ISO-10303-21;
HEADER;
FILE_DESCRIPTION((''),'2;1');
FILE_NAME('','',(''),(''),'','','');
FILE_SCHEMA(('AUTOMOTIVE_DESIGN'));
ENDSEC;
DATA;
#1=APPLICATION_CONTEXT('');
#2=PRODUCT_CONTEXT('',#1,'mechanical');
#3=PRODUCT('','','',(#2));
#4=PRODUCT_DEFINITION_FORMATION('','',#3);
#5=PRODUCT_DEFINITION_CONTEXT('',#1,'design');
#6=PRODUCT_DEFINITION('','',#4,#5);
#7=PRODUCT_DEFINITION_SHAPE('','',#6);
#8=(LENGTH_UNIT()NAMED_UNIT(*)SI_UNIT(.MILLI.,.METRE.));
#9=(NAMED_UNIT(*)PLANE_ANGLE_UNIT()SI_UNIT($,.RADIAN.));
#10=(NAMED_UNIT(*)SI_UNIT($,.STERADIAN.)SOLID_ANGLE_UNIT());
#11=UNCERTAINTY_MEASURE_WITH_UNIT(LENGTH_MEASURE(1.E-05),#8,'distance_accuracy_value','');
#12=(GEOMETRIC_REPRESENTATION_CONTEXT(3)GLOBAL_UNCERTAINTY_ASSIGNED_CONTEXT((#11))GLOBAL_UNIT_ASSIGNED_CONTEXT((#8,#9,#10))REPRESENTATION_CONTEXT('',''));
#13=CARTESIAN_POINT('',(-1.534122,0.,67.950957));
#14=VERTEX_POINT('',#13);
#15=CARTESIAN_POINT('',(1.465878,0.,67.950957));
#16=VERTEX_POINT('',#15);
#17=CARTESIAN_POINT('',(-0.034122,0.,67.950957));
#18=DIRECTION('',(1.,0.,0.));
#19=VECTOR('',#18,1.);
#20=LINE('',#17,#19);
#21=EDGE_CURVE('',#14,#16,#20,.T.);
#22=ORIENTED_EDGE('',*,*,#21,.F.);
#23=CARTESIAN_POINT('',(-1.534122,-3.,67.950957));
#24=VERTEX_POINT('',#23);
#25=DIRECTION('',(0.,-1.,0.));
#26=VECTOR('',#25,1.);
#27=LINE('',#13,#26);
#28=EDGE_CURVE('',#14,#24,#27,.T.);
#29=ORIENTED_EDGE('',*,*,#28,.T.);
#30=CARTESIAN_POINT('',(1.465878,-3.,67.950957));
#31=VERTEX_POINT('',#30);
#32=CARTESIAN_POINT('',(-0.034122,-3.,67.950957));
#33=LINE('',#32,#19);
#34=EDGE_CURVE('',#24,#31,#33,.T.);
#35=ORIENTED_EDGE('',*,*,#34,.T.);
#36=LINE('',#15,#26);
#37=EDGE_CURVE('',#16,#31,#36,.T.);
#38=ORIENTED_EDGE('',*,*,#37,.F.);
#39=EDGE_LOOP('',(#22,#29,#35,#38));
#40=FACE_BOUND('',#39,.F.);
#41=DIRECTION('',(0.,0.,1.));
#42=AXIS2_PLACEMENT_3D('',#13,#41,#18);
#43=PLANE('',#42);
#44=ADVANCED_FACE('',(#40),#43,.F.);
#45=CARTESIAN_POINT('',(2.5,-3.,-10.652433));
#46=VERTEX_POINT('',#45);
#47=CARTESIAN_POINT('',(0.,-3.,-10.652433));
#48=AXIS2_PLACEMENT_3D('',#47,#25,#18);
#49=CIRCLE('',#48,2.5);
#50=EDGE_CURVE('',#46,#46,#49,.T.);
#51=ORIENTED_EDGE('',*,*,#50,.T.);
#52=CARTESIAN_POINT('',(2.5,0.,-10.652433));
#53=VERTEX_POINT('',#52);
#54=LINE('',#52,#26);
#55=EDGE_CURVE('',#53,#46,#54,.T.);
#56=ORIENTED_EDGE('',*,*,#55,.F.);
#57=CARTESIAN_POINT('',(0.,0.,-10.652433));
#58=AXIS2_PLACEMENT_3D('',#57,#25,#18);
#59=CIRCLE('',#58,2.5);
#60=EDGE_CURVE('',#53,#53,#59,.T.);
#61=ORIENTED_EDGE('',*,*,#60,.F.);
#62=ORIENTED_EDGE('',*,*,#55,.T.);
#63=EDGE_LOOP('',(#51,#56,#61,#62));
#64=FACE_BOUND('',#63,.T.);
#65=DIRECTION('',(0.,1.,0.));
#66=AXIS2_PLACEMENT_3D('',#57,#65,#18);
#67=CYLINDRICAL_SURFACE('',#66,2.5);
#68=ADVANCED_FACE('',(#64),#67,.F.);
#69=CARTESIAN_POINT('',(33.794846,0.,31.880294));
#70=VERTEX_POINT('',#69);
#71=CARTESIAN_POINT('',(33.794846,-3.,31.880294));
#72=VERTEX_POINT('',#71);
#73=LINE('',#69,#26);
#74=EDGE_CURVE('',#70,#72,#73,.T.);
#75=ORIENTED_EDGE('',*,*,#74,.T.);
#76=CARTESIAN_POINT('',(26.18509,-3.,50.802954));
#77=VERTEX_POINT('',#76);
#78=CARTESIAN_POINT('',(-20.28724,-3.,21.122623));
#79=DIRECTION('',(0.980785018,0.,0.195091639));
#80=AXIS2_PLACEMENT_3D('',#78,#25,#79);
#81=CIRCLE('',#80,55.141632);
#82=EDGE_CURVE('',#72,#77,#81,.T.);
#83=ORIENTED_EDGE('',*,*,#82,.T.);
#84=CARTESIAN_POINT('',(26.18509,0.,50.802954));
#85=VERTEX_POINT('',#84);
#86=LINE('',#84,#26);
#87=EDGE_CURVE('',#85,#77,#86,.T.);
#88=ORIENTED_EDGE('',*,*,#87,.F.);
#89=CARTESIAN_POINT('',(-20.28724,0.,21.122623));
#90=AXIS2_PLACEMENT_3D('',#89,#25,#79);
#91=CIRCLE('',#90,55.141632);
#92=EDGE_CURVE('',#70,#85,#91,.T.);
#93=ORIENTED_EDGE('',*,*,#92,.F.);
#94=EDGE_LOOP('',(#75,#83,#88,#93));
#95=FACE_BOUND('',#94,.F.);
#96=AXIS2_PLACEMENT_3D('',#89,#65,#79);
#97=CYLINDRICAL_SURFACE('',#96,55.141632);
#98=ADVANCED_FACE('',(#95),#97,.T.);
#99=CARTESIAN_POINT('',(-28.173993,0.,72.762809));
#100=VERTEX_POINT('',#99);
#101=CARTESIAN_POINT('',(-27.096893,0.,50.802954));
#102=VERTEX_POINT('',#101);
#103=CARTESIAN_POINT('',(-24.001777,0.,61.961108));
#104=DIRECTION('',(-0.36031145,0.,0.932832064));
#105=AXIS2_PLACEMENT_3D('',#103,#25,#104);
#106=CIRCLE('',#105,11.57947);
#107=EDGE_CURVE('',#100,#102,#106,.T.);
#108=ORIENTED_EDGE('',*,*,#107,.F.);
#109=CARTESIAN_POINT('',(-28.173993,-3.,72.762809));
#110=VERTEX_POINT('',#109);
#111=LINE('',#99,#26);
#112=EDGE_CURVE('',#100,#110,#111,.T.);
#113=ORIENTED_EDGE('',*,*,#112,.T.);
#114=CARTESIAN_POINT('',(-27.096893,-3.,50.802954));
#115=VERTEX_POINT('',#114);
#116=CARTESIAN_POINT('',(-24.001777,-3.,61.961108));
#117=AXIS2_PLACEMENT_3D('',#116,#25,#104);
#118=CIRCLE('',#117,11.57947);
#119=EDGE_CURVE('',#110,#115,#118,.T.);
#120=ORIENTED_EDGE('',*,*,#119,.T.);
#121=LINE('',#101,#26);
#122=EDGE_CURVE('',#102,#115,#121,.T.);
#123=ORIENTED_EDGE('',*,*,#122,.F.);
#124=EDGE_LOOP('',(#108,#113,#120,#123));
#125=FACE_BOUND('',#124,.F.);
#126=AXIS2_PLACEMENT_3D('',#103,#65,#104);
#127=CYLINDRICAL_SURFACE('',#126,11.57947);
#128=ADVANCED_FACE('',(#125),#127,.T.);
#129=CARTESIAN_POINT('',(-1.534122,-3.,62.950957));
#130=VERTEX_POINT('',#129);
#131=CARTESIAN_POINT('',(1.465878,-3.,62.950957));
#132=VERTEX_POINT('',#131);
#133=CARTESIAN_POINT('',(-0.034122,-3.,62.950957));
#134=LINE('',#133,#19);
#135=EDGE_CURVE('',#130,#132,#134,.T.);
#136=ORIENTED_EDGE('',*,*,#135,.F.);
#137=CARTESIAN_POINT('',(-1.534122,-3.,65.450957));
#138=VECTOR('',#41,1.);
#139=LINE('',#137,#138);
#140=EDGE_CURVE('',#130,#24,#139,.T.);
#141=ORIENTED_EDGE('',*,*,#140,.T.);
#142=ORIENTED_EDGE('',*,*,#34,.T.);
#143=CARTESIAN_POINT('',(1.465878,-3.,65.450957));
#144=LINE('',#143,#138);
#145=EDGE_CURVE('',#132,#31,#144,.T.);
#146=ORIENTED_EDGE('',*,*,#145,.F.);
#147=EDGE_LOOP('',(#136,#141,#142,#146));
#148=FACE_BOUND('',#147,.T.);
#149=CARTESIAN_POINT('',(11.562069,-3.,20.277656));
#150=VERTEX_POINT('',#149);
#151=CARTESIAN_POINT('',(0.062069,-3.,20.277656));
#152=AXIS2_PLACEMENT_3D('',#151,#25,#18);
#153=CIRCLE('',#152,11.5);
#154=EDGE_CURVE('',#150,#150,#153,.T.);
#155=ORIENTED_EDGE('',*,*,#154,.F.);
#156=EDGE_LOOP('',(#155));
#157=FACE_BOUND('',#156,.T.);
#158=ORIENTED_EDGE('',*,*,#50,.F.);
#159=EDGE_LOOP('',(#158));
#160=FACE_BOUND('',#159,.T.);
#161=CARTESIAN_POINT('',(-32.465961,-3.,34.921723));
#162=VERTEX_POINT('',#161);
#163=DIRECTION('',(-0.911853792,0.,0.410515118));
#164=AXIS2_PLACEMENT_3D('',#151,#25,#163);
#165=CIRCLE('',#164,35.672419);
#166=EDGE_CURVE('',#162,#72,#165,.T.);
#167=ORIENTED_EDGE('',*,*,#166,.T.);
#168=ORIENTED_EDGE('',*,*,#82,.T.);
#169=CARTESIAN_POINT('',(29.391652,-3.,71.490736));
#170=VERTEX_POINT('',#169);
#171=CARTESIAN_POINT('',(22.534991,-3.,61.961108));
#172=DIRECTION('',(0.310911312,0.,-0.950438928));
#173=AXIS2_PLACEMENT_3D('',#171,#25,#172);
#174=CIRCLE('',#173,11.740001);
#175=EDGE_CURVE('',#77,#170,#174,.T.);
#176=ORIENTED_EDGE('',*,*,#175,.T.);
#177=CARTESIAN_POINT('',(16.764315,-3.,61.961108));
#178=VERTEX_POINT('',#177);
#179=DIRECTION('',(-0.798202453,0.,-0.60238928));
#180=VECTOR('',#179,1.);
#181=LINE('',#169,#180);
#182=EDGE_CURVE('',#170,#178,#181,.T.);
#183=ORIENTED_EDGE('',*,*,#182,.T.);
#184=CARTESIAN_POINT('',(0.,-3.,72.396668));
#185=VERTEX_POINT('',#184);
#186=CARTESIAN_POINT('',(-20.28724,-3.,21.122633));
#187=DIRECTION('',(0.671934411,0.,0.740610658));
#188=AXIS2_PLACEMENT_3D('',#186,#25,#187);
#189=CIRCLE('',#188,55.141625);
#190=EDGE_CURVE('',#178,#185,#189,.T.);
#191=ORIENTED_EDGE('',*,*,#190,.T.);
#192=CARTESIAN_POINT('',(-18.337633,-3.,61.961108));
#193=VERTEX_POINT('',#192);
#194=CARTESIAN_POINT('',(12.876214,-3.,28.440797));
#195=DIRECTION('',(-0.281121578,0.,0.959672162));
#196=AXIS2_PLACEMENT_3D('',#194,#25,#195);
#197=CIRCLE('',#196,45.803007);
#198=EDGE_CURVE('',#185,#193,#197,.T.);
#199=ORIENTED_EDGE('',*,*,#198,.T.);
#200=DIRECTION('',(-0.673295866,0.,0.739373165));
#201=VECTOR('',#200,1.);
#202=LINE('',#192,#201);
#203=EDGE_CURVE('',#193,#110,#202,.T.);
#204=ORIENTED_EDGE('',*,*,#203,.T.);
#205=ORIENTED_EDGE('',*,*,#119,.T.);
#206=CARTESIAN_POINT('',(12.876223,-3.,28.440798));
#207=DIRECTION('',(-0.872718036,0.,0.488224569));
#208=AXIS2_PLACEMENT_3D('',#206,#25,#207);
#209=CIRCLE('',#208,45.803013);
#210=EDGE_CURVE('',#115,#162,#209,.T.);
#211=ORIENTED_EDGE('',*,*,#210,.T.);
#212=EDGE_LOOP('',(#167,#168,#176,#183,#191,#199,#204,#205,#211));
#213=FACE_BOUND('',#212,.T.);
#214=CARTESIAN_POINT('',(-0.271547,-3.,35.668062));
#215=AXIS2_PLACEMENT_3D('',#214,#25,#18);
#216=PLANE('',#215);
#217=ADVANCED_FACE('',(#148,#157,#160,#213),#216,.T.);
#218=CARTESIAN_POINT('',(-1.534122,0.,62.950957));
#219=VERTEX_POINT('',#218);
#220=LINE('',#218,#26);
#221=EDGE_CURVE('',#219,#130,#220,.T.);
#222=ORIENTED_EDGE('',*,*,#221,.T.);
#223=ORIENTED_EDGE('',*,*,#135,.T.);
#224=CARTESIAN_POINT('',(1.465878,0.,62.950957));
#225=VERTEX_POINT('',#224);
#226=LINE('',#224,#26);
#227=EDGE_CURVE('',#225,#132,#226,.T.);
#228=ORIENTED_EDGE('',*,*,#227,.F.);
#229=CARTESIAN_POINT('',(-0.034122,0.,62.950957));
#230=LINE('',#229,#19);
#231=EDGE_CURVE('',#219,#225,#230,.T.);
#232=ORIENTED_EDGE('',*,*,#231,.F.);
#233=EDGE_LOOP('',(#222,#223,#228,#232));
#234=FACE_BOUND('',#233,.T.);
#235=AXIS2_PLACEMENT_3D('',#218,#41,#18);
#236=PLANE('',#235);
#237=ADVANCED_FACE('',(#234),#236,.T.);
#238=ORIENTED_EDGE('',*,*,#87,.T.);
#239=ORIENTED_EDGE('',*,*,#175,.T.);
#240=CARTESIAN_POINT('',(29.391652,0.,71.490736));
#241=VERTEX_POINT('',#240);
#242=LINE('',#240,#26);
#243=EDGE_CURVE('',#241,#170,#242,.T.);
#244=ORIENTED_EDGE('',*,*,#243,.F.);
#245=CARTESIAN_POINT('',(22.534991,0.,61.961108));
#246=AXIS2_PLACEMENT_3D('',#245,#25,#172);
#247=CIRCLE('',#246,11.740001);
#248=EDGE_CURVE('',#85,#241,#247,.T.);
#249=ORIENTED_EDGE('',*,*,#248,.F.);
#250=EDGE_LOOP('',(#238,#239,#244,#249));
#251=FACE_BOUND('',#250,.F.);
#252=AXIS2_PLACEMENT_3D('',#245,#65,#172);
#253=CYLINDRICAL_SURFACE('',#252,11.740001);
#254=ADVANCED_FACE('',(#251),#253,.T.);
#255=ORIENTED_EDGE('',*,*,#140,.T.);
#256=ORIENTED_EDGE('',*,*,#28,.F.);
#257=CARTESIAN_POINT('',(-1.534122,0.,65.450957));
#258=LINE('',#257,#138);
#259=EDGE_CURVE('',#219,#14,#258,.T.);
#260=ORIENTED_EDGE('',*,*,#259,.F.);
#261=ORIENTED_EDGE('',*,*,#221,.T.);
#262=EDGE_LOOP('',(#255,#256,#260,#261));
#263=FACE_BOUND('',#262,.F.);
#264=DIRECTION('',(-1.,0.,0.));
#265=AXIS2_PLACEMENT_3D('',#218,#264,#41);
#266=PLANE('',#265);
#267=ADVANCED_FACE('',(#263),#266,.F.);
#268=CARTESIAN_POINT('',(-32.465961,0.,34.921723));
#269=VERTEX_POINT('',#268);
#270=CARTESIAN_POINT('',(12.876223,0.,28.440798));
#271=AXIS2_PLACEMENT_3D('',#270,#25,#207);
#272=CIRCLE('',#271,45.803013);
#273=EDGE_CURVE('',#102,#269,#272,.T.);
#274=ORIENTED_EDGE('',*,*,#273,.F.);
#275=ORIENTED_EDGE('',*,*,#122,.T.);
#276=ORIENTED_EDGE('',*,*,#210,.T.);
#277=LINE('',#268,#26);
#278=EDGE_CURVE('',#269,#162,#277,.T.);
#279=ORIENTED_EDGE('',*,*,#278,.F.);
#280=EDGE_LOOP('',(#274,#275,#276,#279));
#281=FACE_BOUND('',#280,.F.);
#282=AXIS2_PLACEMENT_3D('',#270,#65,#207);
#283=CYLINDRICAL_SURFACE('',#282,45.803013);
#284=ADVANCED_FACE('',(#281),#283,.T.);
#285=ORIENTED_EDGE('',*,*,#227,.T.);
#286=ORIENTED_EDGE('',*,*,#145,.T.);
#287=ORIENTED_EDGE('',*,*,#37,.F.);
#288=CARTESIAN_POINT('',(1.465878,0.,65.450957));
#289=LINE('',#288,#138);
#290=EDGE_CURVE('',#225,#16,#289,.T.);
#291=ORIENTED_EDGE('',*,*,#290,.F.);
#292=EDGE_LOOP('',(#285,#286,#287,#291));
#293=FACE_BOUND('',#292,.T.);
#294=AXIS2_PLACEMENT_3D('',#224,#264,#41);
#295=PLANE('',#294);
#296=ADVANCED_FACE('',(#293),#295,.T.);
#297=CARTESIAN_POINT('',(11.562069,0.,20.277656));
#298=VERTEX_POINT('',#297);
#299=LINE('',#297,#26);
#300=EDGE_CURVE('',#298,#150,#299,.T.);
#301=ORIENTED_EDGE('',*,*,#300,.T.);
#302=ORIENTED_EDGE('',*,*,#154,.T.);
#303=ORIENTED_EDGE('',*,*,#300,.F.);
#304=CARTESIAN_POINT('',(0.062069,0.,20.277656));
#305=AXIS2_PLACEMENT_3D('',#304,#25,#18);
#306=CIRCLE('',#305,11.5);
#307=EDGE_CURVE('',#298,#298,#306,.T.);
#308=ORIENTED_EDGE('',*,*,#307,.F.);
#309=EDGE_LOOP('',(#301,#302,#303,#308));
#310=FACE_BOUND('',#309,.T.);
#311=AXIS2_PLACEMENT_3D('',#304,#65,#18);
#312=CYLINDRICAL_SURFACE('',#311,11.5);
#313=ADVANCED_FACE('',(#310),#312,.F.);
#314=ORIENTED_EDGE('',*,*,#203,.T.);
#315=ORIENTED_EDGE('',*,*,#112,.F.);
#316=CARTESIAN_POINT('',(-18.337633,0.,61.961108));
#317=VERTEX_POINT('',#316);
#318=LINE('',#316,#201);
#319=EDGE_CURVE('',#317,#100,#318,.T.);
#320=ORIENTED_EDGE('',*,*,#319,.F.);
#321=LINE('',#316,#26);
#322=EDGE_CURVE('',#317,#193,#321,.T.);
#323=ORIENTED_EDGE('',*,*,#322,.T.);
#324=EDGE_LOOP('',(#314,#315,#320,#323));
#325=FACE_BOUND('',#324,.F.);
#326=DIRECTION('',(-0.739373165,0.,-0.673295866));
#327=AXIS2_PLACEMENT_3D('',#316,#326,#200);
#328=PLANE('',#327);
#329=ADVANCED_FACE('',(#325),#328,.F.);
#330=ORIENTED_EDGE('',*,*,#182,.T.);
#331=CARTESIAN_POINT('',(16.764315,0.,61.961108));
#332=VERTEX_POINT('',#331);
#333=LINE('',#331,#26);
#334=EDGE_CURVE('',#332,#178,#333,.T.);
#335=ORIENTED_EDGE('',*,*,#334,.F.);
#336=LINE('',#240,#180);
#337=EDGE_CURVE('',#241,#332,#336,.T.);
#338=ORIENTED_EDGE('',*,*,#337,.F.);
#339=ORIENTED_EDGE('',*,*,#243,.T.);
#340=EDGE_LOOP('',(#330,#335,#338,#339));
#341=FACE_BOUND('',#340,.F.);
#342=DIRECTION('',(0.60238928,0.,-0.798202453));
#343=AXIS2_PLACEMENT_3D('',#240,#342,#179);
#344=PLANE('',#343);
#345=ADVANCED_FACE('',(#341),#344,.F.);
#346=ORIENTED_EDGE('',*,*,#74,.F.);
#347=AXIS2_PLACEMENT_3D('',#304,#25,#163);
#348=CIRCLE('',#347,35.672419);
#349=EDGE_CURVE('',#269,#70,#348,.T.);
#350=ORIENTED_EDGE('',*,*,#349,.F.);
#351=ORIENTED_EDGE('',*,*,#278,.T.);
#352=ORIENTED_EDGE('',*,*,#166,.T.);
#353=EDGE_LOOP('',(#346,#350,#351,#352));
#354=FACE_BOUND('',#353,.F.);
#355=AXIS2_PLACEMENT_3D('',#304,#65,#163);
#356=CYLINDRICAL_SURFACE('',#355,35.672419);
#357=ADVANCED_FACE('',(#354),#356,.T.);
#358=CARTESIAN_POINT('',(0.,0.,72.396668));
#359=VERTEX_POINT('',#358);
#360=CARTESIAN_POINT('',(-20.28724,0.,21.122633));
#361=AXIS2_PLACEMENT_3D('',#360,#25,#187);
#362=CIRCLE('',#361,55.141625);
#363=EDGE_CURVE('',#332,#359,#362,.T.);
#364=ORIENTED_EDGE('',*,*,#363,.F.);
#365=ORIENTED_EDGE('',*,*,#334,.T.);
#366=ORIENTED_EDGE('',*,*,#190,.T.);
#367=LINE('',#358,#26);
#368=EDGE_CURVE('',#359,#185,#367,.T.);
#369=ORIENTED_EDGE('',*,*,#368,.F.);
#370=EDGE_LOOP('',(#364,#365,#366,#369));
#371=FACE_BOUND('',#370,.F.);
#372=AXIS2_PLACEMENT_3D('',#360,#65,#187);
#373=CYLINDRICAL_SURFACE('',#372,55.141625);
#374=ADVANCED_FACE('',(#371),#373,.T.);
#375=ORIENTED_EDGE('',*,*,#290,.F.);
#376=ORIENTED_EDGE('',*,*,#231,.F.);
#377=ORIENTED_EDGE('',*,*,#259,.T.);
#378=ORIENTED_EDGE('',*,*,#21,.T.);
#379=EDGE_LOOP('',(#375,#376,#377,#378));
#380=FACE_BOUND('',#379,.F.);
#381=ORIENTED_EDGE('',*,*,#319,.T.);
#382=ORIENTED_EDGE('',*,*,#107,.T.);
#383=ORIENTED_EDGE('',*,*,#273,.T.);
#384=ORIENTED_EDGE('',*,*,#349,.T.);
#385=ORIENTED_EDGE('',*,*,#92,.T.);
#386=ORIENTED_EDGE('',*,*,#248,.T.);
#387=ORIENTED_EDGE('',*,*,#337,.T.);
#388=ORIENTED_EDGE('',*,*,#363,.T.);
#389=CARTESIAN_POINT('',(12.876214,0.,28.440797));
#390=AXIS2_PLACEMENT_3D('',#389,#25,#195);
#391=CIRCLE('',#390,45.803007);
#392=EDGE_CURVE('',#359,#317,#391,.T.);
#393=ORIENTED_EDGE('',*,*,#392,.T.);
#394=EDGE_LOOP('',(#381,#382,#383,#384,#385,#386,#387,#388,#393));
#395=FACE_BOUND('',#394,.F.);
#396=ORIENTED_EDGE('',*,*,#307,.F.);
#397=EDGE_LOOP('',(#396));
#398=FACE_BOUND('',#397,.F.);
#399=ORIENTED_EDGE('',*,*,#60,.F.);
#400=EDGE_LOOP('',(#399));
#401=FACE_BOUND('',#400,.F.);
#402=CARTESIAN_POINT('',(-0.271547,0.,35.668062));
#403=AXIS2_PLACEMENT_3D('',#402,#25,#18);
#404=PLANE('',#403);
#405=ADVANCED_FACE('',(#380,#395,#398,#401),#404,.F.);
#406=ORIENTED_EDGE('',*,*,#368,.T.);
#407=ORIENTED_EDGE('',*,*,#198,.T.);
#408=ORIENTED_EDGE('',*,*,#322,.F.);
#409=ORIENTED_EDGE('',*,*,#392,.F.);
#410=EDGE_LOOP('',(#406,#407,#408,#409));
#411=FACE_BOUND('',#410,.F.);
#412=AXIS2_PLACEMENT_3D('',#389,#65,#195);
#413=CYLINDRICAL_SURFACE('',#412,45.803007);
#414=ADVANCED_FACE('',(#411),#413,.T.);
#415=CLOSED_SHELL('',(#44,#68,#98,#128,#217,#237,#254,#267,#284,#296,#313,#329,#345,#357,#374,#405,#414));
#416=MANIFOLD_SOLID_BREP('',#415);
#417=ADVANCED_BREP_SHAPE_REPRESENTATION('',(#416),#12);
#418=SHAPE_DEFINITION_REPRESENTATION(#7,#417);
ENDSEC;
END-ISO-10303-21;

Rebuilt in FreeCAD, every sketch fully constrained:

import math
import FreeCAD as App
import Part
import Sketcher
from FreeCAD import Vector


def add_polygon(sketch, points):
    """Adds a closed chain of lines whose ends are joined by coincident constraints."""
    first, n = sketch.GeometryCount, len(points)
    for a, b in zip(points, points[1:] + points[:1]):
        sketch.addGeometry(Part.LineSegment(App.Vector(*a, 0), App.Vector(*b, 0)), False)
    for i in range(n):
        sketch.addConstraint(Sketcher.Constraint("Coincident", first + i, 2, first + (i + 1) % n, 1))

doc = App.newDocument("Part")
body = doc.addObject("PartDesign::Body", "Body")

sketch1 = body.newObject("Sketcher::SketchObject", "Sketch")
sketch1.AttachmentSupport = (doc.getObject("XZ_Plane"), [""])
sketch1.MapMode = "FlatFace"
sketch1.addGeometry(Part.ArcOfCircle(Part.Circle(Vector(-20.28724, 21.122633, 0), Vector(0, 0, 1), 55.141625), math.radians(47.78346), math.radians(68.413126)), False)
sketch1.addGeometry(Part.ArcOfCircle(Part.Circle(Vector(12.876214, 28.440797, 0), Vector(0, 0, 1), 45.803007), math.radians(106.327155), math.radians(132.959427)), False)
sketch1.addGeometry(Part.LineSegment(Vector(-18.337633, 61.961108, 0), Vector(-28.173993, 72.762809, 0)), False)
sketch1.addGeometry(Part.ArcOfCircle(Part.Circle(Vector(-24.001777, 61.961108, 0), Vector(0, 0, 1), 11.57947), math.radians(111.119324), math.radians(254.49673)), False)
sketch1.addGeometry(Part.ArcOfCircle(Part.Circle(Vector(12.876223, 28.440798, 0), Vector(0, 0, 1), 45.803013), math.radians(150.776046), math.radians(171.8656)), False)
sketch1.addGeometry(Part.ArcOfCircle(Part.Circle(Vector(0.062069, 20.277656, 0), Vector(0, 0, 1), 35.672419), math.radians(155.762802), math.radians(378.981034)), False)
sketch1.addGeometry(Part.ArcOfCircle(Part.Circle(Vector(-20.28724, 21.122623, 0), Vector(0, 0, 1), 55.141632), math.radians(11.250077), math.radians(32.565017)), False)
sketch1.addGeometry(Part.ArcOfCircle(Part.Circle(Vector(22.534991, 61.961108, 0), Vector(0, 0, 1), 11.740001), math.radians(-71.885841), math.radians(54.264614)), False)
sketch1.addGeometry(Part.LineSegment(Vector(29.391652, 71.490736, 0), Vector(16.764315, 61.961108, 0)), False)
sketch1.addGeometry(Part.Circle(Vector(0, -10.652433, 0), Vector(0, 0, 1), 2.5), False)
sketch1.addGeometry(Part.Circle(Vector(0.062069, 20.277656, 0), Vector(0, 0, 1), 11.5), False)
add_polygon(sketch1, [(1.465878, 62.950957), (-1.534122, 62.950957), (-1.534122, 67.950957), (1.465878, 67.950957)])
sketch1.addConstraint(Sketcher.Constraint("Coincident", 0, 2, 1, 1))
sketch1.addConstraint(Sketcher.Constraint("Coincident", 1, 2, 2, 1))
sketch1.addConstraint(Sketcher.Constraint("Coincident", 2, 2, 3, 1))
sketch1.addConstraint(Sketcher.Constraint("Coincident", 3, 2, 4, 1))
sketch1.addConstraint(Sketcher.Constraint("Coincident", 4, 2, 5, 1))
sketch1.addConstraint(Sketcher.Constraint("Coincident", 5, 2, 6, 1))
sketch1.addConstraint(Sketcher.Constraint("Coincident", 6, 2, 7, 1))
sketch1.addConstraint(Sketcher.Constraint("Coincident", 7, 2, 8, 1))
sketch1.addConstraint(Sketcher.Constraint("Coincident", 8, 2, 0, 1))
sketch1.addConstraint(Sketcher.Constraint("Horizontal", 11))
sketch1.addConstraint(Sketcher.Constraint("Vertical", 12))
sketch1.addConstraint(Sketcher.Constraint("Horizontal", 13))
sketch1.addConstraint(Sketcher.Constraint("Vertical", 14))
sketch1.addConstraint(Sketcher.Constraint("Coincident", 4, 3, 1, 3))
sketch1.addConstraint(Sketcher.Constraint("Coincident", 10, 3, 5, 3))
sketch1.addConstraint(Sketcher.Constraint("PointOnObject", 9, 3, -2))
sketch1.addConstraint(Sketcher.Constraint("PointOnObject", 0, 2, -2))
sketch1.addConstraint(Sketcher.Constraint("Horizontal", 3, 3, 7, 3))
sketch1.addConstraint(Sketcher.Constraint("Horizontal", 7, 3, 1, 2))
sketch1.addConstraint(Sketcher.Constraint("Horizontal", 3, 2, 6, 2))
sketch1.addConstraint(Sketcher.Constraint("Horizontal", 1, 2, 8, 2))
sketch1.addConstraint(Sketcher.Constraint("Vertical", 0, 3, 6, 3))
sketch1.addConstraint(Sketcher.Constraint("Diameter", 9, 5.0))
sketch1.addConstraint(Sketcher.Constraint("Diameter", 10, 23.0))
sketch1.addConstraint(Sketcher.Constraint("DistanceX", 11, 2, 11, 1, 3.0))
sketch1.addConstraint(Sketcher.Constraint("DistanceY", 12, 1, 12, 2, 5.0))
sketch1.addConstraint(Sketcher.Constraint("Radius", 7, 11.740001))
sketch1.addConstraint(Sketcher.Constraint("Radius", 3, 11.57947))
sketch1.addConstraint(Sketcher.Constraint("Radius", 5, 35.672419))
sketch1.addConstraint(Sketcher.Constraint("Radius", 6, 55.141632))
sketch1.addConstraint(Sketcher.Constraint("Radius", 0, 55.141625))
sketch1.addConstraint(Sketcher.Constraint("Radius", 1, 45.803007))
sketch1.addConstraint(Sketcher.Constraint("Radius", 4, 45.803013))
sketch1.addConstraint(Sketcher.Constraint("DistanceX", 3, 3, 4, 3, 36.878))
sketch1.addConstraint(Sketcher.Constraint("DistanceY", 3, 3, 2, 2, 10.801701))
sketch1.addConstraint(Sketcher.Constraint("DistanceX", 2, 2, 3, 2, 1.0771))
sketch1.addConstraint(Sketcher.Constraint("DistanceY", 6, 3, 4, 2, 13.7991))
sketch1.addConstraint(Sketcher.Constraint("DistanceX", 0, 3, -1, 1, 20.28724))
sketch1.addConstraint(Sketcher.Constraint("DistanceX", -1, 1, 5, 3, 0.062069))
sketch1.addConstraint(Sketcher.Constraint("DistanceX", -1, 1, 7, 3, 22.534991))
sketch1.addConstraint(Sketcher.Constraint("DistanceY", -1, 1, 0, 2, 72.396668))
sketch1.addConstraint(Sketcher.Constraint("DistanceY", -1, 1, 2, 2, 72.762809))
sketch1.addConstraint(Sketcher.Constraint("DistanceY", 9, 3, 5, 3, 30.930089))
sketch1.addConstraint(Sketcher.Constraint("DistanceX", 7, 3, 7, 2, 6.856661))
sketch1.addConstraint(Sketcher.Constraint("DistanceY", 11, 2, 0, 2, 9.445711))
sketch1.addConstraint(Sketcher.Constraint("DistanceX", 1, 2, 11, 2, 16.803511))
pad1 = body.newObject("PartDesign::Pad", "Pad")
pad1.Profile = sketch1
pad1.Length = 3

doc.recompute()
